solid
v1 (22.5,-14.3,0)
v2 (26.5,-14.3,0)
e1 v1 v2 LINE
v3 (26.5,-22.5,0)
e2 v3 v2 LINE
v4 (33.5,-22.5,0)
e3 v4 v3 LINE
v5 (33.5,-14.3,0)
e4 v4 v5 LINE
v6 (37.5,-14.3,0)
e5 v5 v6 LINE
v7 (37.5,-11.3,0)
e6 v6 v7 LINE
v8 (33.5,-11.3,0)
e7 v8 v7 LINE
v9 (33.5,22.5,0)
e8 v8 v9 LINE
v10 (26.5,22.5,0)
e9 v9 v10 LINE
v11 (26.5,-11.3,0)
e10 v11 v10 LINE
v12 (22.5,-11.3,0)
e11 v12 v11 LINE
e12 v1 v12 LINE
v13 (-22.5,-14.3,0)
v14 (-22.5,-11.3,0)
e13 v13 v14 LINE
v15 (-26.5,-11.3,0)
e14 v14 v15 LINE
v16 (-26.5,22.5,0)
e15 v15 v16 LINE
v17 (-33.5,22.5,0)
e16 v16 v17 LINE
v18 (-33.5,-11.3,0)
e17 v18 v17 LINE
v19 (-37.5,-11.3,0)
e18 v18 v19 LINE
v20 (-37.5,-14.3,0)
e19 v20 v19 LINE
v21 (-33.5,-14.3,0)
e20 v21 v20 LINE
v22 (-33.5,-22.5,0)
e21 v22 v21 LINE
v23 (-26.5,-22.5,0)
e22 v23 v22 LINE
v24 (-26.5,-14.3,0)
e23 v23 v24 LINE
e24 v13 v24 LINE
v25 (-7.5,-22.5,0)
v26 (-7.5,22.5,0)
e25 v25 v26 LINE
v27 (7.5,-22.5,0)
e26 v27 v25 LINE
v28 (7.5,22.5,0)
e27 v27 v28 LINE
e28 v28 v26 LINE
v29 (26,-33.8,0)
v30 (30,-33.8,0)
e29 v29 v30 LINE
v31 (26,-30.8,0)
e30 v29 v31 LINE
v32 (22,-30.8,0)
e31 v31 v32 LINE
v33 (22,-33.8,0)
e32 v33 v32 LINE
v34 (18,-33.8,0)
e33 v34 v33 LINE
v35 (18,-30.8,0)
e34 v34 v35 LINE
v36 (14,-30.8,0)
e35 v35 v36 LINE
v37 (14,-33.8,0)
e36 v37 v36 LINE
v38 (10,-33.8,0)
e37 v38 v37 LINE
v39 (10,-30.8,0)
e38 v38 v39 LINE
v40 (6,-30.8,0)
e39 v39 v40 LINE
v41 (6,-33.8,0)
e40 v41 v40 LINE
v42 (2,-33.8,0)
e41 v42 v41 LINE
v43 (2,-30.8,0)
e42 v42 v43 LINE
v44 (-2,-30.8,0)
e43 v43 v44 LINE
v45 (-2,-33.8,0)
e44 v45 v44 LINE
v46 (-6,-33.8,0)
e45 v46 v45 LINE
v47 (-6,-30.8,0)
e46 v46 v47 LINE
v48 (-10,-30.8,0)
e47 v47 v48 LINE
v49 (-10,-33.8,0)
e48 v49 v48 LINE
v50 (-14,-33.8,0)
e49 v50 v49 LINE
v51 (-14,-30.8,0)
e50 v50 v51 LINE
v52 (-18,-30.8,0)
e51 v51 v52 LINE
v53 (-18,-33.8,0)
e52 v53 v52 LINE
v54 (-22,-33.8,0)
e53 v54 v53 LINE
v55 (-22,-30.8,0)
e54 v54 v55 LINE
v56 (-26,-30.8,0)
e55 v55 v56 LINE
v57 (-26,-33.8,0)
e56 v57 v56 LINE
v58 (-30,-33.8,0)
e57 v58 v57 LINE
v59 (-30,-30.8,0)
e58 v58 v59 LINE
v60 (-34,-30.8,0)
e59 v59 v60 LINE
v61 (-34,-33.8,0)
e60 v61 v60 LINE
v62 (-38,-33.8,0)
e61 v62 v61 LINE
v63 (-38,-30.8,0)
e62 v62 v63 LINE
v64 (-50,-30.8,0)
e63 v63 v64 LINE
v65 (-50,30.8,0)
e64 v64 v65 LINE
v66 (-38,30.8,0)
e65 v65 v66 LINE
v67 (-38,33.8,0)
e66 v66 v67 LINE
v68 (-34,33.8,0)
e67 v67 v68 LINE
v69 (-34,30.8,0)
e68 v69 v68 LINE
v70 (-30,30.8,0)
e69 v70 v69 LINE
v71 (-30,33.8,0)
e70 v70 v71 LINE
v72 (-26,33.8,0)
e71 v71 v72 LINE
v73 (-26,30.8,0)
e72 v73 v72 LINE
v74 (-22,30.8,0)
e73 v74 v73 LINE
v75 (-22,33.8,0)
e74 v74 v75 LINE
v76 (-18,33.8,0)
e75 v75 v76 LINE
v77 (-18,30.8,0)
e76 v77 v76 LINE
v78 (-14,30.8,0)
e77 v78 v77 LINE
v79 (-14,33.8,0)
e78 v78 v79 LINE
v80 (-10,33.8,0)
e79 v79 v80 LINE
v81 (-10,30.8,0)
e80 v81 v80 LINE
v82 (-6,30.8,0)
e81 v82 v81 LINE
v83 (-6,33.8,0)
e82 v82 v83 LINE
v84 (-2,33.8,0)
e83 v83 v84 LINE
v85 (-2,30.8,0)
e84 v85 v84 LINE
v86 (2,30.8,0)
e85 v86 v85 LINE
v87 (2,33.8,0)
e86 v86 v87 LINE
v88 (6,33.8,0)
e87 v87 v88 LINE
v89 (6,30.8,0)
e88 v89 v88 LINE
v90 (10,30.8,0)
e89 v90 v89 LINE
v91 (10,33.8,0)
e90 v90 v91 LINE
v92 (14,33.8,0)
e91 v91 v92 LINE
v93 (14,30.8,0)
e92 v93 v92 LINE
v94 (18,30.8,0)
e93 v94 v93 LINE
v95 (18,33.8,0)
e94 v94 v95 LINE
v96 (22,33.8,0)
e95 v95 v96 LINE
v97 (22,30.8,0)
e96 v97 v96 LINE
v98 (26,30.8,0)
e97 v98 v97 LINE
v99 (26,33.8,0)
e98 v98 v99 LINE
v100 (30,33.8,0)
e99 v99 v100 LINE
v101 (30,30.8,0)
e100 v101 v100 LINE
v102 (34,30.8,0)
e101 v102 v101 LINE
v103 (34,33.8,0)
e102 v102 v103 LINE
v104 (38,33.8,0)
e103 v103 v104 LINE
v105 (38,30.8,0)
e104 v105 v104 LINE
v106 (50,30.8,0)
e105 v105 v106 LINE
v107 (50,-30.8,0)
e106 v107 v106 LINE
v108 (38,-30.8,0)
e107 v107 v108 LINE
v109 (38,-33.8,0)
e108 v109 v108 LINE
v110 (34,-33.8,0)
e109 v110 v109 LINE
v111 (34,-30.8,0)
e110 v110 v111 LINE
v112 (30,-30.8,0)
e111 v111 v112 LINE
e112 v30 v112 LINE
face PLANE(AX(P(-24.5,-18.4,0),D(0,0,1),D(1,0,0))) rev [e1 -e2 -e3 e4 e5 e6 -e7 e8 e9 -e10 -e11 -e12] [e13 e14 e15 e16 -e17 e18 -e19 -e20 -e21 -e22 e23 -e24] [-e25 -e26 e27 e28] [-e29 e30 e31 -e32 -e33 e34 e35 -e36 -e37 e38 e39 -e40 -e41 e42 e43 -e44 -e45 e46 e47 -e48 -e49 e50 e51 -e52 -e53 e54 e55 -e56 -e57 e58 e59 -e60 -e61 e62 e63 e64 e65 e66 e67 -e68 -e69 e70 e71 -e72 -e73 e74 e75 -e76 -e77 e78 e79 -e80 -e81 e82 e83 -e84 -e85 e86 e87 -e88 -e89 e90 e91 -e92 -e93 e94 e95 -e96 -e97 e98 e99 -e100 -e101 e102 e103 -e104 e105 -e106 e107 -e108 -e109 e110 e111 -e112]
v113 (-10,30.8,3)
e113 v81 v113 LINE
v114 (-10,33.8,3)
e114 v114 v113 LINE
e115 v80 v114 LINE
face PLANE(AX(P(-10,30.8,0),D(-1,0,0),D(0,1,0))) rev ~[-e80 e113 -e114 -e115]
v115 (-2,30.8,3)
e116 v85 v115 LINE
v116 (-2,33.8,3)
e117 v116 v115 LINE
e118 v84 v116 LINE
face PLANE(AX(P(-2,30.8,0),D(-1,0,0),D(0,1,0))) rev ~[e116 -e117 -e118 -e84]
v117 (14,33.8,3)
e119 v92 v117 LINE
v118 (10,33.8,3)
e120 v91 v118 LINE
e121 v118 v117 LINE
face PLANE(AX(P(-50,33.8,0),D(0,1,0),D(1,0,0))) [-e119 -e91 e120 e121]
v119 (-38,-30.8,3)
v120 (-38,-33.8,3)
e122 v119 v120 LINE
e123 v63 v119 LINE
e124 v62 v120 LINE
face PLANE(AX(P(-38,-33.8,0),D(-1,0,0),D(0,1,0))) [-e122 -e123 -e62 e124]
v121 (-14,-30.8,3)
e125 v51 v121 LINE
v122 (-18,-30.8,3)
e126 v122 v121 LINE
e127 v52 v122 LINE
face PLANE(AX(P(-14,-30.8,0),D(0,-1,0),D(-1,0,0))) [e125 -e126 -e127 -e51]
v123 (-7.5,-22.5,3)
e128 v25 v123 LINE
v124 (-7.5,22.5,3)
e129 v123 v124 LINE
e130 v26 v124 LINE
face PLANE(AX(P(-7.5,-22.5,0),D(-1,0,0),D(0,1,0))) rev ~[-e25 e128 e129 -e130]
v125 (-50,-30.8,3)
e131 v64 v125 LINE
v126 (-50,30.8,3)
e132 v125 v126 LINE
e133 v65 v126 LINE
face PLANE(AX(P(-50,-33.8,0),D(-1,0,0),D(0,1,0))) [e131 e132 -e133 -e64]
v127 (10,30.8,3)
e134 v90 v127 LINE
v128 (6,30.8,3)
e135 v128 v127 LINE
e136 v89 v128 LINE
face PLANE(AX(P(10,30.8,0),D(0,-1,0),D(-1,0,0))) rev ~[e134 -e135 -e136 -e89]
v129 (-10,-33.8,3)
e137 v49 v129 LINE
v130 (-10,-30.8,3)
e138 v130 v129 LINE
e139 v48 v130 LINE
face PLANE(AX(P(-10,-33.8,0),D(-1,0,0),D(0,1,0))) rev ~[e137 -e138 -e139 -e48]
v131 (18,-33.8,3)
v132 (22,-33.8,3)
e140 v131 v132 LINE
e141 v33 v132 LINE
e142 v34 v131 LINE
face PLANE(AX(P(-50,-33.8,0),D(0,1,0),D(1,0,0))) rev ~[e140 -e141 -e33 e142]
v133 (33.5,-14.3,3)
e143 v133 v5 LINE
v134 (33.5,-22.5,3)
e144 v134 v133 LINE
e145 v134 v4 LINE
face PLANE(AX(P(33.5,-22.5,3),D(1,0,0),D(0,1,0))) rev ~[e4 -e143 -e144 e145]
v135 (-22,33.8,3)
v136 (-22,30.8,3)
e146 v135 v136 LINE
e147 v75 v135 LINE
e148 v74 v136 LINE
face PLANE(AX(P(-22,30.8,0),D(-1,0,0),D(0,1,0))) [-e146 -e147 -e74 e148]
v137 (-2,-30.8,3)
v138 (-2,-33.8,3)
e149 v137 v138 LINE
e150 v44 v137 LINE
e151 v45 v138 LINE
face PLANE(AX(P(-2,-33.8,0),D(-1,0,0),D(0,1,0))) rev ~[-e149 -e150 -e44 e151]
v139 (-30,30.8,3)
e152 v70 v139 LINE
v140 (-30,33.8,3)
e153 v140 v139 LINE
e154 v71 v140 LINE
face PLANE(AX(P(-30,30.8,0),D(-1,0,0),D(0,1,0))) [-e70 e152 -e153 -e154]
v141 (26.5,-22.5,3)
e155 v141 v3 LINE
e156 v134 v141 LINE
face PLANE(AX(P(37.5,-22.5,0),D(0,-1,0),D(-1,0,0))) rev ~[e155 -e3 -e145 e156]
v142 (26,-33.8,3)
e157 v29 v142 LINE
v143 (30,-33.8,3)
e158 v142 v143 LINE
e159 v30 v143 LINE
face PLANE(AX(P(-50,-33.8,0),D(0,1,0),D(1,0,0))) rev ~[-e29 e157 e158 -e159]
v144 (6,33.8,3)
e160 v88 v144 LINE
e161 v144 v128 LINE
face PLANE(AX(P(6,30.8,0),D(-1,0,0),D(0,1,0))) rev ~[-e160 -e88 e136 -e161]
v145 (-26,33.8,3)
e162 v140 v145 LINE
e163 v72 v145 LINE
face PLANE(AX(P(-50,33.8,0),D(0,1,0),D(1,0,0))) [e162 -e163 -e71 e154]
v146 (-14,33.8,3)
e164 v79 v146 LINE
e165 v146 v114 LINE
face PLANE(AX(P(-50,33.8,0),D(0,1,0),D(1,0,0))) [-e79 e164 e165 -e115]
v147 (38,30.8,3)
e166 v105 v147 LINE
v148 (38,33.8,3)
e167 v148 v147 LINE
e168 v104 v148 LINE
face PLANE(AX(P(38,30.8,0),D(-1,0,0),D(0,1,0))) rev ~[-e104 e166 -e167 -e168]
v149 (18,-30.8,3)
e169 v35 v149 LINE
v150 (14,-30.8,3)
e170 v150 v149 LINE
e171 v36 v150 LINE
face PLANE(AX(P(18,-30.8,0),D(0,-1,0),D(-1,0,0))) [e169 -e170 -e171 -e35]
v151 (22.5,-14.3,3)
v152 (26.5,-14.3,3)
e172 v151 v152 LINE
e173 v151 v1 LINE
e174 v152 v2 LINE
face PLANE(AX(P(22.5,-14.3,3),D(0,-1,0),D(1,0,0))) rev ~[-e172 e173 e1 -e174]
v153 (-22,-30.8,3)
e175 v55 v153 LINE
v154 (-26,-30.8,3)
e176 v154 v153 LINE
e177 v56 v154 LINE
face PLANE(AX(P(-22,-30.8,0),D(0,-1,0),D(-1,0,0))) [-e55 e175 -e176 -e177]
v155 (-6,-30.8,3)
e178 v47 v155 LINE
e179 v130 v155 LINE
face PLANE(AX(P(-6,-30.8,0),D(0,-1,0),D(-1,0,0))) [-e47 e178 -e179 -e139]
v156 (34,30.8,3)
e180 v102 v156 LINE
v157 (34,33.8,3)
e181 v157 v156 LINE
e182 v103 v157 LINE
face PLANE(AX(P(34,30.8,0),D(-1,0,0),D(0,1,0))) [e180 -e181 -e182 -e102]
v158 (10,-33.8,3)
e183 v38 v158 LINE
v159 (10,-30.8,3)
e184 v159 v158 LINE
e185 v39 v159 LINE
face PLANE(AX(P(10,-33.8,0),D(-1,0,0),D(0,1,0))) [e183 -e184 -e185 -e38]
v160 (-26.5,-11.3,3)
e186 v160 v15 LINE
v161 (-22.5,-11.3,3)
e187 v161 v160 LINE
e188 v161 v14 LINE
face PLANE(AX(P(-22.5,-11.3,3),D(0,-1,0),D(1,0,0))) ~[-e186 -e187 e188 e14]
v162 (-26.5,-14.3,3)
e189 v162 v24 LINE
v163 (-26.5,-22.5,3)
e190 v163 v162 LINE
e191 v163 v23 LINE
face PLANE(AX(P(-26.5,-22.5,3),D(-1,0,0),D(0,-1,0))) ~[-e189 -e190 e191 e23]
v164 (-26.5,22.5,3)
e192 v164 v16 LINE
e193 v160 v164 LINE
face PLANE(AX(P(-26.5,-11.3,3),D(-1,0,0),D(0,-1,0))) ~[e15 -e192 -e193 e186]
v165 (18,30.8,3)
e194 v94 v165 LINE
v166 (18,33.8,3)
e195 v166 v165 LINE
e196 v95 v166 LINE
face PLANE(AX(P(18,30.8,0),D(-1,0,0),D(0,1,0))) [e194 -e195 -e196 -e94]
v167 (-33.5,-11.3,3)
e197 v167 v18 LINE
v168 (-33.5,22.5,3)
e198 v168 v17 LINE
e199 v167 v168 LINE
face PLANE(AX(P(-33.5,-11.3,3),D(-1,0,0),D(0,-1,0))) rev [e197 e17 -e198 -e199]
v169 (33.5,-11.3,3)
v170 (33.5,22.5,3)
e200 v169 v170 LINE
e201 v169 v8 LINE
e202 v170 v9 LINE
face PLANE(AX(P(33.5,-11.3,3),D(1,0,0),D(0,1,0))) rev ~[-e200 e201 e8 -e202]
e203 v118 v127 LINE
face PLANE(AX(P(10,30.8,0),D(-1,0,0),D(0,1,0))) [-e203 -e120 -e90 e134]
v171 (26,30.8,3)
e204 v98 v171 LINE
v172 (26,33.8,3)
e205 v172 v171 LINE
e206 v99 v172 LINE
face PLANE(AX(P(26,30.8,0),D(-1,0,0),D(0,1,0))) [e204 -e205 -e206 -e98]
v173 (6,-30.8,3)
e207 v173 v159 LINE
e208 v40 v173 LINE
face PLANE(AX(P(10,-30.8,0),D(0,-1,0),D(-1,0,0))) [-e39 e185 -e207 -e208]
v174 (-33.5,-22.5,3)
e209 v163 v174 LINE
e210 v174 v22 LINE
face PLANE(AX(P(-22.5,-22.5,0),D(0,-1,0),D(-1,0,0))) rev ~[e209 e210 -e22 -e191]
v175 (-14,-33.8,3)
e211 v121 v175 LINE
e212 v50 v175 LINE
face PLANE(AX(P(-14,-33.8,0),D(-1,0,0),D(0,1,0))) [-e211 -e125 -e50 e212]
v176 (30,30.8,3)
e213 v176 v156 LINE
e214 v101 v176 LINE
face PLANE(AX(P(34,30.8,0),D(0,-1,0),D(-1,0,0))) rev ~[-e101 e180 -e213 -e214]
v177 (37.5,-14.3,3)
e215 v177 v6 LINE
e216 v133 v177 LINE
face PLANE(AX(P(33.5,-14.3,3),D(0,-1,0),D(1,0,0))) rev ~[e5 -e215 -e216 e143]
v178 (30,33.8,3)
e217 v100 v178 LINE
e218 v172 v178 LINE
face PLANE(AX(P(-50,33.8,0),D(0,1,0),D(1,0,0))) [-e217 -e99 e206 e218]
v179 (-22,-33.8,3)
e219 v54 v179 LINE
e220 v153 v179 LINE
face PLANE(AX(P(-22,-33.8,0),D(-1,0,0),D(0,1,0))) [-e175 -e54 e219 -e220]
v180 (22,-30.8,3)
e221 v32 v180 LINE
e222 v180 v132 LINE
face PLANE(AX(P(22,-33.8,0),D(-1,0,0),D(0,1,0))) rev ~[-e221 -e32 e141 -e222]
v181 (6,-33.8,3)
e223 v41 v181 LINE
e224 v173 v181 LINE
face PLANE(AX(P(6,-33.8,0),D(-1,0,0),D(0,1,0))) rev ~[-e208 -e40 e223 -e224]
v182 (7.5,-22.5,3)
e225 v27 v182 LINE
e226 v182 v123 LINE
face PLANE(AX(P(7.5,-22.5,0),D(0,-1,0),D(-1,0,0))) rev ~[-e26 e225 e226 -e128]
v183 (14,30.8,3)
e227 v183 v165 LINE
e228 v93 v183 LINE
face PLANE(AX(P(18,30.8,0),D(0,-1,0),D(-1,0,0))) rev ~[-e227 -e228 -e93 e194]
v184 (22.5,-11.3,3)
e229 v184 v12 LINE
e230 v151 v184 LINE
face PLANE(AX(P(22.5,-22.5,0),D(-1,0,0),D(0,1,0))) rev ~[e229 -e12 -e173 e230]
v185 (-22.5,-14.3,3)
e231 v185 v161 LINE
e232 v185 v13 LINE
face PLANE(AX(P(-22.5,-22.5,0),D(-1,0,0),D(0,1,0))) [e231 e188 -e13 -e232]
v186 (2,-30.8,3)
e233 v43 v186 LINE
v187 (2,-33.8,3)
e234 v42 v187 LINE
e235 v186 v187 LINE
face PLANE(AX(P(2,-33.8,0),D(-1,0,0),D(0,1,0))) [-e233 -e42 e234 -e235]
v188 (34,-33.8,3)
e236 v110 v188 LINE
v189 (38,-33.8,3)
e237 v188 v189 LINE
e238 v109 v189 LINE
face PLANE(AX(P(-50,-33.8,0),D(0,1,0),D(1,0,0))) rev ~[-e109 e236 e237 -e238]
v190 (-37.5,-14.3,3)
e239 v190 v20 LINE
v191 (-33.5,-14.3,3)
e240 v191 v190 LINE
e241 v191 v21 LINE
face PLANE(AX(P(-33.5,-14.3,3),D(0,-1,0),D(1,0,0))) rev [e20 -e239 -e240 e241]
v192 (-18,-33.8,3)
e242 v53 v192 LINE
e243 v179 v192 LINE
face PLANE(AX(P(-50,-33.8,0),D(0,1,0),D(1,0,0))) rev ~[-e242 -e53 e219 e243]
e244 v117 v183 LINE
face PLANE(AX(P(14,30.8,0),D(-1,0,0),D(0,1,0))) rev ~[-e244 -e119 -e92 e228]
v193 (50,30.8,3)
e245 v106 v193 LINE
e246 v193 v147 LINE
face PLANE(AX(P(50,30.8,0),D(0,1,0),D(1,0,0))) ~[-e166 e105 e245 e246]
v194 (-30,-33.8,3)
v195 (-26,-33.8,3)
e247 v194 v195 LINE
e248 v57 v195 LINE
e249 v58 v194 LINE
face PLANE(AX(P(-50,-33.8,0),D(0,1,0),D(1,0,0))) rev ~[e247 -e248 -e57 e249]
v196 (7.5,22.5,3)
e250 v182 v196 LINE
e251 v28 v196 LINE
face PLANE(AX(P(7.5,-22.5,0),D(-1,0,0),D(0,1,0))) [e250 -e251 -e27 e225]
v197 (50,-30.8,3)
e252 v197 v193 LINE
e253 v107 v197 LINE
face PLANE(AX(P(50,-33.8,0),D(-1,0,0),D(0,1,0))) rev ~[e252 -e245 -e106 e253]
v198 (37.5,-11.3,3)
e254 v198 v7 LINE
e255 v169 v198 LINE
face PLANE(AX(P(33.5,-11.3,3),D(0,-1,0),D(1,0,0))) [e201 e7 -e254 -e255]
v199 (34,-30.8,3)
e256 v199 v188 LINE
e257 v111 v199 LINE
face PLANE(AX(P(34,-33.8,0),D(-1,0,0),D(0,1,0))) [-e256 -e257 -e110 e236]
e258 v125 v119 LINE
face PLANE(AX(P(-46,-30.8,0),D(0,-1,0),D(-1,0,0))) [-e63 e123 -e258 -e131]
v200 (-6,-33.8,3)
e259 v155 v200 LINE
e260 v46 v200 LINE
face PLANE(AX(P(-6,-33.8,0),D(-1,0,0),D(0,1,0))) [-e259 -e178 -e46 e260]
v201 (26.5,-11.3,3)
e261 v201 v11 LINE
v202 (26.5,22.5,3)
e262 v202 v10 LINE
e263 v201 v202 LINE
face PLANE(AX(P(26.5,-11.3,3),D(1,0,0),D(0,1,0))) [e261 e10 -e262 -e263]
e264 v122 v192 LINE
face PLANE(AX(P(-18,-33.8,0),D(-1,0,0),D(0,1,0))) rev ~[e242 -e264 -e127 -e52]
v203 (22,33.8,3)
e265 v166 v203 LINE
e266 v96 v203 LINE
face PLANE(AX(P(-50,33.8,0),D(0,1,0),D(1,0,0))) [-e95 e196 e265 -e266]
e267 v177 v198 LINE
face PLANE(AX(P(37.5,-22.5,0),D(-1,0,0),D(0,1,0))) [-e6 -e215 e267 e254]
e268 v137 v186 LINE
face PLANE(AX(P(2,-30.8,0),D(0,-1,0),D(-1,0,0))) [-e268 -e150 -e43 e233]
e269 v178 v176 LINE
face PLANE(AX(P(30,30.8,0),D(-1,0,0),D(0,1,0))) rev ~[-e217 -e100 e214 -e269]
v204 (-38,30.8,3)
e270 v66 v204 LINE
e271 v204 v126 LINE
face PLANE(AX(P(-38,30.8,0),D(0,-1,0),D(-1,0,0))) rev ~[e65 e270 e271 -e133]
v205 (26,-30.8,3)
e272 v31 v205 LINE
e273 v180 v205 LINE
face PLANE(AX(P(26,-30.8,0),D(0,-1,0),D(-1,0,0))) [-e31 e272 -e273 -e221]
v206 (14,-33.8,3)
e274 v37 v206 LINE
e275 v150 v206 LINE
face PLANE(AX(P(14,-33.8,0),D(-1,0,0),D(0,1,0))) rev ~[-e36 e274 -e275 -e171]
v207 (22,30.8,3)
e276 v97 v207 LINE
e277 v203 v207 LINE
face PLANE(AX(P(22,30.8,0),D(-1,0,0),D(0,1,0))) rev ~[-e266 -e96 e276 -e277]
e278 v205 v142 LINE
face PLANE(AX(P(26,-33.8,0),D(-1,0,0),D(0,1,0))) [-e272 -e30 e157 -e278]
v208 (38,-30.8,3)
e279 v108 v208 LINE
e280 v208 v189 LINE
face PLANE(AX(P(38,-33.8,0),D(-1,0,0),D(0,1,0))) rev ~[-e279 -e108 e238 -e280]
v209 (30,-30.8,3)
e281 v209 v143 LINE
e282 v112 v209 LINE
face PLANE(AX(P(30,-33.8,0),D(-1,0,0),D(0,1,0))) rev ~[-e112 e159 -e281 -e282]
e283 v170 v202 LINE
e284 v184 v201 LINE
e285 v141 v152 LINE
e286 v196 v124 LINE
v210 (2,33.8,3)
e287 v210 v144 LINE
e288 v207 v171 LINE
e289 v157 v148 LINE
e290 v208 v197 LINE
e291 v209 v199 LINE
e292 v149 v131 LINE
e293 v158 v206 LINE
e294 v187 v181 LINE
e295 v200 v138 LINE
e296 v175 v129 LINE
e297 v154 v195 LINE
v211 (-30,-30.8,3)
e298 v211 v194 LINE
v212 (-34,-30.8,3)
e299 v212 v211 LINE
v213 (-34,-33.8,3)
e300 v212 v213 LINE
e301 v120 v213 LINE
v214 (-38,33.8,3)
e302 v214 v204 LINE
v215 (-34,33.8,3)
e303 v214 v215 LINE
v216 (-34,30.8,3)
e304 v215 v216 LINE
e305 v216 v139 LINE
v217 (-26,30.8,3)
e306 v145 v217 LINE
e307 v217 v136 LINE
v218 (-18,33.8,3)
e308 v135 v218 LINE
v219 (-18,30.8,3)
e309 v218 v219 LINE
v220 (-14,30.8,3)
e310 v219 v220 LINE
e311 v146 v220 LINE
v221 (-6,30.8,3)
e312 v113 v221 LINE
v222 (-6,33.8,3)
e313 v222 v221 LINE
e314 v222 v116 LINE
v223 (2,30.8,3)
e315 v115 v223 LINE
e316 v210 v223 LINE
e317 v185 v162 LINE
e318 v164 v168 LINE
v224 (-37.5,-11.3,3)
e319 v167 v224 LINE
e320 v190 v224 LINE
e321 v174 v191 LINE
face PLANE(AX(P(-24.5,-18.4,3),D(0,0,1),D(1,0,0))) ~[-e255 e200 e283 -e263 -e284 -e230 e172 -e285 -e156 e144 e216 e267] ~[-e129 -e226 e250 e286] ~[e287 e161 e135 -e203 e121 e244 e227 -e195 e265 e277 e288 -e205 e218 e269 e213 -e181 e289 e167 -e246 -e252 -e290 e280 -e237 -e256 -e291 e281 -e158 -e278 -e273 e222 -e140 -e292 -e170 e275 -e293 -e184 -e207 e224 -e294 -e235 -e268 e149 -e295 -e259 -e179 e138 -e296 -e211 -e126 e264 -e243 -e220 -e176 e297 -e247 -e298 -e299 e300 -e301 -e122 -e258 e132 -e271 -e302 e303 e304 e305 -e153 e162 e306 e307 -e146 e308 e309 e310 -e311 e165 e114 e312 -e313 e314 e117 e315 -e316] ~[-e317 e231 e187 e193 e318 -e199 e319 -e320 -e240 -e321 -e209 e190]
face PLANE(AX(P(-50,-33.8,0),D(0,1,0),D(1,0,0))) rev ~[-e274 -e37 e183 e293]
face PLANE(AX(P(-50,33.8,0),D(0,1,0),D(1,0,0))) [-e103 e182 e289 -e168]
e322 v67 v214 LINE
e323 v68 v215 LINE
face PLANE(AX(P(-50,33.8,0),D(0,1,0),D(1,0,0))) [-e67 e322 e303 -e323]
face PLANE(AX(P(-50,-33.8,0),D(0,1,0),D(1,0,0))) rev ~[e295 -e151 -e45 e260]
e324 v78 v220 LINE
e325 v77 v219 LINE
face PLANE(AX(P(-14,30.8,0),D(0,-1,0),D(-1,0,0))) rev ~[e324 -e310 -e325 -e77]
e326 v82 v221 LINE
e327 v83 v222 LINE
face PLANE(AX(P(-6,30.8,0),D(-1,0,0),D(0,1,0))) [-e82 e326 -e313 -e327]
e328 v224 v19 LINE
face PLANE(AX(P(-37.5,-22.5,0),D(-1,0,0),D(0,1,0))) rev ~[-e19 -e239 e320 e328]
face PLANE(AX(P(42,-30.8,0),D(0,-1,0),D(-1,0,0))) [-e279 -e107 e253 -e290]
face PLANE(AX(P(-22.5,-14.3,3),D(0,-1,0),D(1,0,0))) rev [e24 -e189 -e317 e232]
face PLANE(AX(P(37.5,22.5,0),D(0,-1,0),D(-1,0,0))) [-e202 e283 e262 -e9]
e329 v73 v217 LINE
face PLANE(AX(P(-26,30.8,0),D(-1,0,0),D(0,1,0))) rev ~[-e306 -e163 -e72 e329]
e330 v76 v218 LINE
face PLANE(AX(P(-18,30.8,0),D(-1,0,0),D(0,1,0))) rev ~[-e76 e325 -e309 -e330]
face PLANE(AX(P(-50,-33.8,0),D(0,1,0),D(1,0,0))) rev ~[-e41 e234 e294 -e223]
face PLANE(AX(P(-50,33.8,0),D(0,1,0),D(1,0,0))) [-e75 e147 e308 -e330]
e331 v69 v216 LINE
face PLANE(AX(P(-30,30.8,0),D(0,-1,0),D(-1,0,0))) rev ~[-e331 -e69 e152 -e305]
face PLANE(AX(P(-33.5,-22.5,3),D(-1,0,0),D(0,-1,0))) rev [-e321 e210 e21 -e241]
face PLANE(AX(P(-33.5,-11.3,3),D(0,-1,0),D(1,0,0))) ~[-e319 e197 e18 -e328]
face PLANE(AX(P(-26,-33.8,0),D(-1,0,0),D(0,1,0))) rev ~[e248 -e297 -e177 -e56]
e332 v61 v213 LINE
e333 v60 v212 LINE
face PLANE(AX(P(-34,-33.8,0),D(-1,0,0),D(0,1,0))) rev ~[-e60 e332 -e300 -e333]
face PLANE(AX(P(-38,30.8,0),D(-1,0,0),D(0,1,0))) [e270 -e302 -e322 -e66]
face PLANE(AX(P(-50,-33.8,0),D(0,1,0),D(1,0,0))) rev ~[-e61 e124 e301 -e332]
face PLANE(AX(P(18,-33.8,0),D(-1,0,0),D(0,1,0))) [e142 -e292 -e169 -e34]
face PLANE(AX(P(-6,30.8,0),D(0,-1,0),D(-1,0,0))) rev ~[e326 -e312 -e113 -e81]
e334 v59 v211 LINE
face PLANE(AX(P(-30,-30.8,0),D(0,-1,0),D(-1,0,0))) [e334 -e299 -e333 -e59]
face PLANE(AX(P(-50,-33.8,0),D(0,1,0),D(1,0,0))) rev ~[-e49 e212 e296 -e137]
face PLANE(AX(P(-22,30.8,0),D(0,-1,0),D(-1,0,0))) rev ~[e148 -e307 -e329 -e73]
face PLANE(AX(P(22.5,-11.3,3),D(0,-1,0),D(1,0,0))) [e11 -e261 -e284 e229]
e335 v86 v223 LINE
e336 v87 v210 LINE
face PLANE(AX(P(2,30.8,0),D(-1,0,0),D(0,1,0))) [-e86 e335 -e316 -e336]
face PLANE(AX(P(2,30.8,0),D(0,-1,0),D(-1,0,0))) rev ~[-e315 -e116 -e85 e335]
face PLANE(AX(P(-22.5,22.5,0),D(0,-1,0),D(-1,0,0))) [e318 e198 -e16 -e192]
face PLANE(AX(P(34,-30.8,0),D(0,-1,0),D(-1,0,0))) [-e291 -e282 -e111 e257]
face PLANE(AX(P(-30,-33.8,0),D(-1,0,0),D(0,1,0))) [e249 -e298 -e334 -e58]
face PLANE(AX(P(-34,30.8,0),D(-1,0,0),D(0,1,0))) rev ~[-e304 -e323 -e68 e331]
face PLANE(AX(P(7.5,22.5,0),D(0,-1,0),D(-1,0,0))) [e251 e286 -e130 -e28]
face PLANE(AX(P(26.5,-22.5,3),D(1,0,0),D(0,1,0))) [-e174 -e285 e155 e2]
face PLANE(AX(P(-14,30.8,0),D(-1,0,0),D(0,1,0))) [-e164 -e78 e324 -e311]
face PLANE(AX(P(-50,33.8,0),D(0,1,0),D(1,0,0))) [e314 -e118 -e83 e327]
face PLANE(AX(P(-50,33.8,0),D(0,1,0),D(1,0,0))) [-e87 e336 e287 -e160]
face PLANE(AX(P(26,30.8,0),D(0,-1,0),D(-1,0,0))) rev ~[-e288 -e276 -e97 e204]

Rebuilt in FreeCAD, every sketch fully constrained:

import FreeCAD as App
import Part
import Sketcher

doc = App.newDocument("Part")
body = doc.addObject("PartDesign::Body", "Body")

sketch1 = doc.addObject("Sketcher::SketchObject", "Sketch")
body.addObject(sketch1)
sketch1.AttachmentSupport = (doc.XY_Plane, [""])
sketch1.MapMode = "FlatFace"
sketch1.addGeometry([
    Part.LineSegment(App.Vector(-50, 33.8, 0), App.Vector(-50, -33.8, 0)),
    Part.LineSegment(App.Vector(-50, -33.8, 0), App.Vector(50, -33.8, 0)),
    Part.LineSegment(App.Vector(50, -33.8, 0), App.Vector(50, 33.8, 0)),
    Part.LineSegment(App.Vector(50, 33.8, 0), App.Vector(-50, 33.8, 0)),
], False)
sketch1.addConstraint([
    Sketcher.Constraint("Coincident", 0, 2, 1, 1),
    Sketcher.Constraint("Coincident", 1, 2, 2, 1),
    Sketcher.Constraint("Coincident", 2, 2, 3, 1),
    Sketcher.Constraint("Coincident", 3, 2, 0, 1),
    Sketcher.Constraint("Vertical", 0),
    Sketcher.Constraint("Horizontal", 1),
    Sketcher.Constraint("Vertical", 2),
    Sketcher.Constraint("Horizontal", 3),
    Sketcher.Constraint("Symmetric", 0, 2, 2, 2, -1, 1),
    Sketcher.Constraint("DistanceX", 1, 1, 1, 2, 100.0),
    Sketcher.Constraint("DistanceY", 0, 2, 0, 1, 67.6),
])
pad1 = doc.addObject("PartDesign::Pad", "Pad")
body.addObject(pad1)
pad1.Profile = sketch1
pad1.Length = 3

sketch2 = doc.addObject("Sketcher::SketchObject", "Sketch001")
body.addObject(sketch2)
sketch2.AttachmentSupport = (doc.XY_Plane, [""])
sketch2.MapMode = "FlatFace"
sketch2.addGeometry([
    Part.LineSegment(App.Vector(50, -30.8, 0), App.Vector(50, -33.8, 0)),
    Part.LineSegment(App.Vector(50, -33.8, 0), App.Vector(46, -33.8, 0)),
    Part.LineSegment(App.Vector(46, -33.8, 0), App.Vector(46, -30.8, 0)),
    Part.LineSegment(App.Vector(46, -30.8, 0), App.Vector(50, -30.8, 0)),
], False)
sketch2.addConstraint([
    Sketcher.Constraint("Coincident", 0, 2, 1, 1),
    Sketcher.Constraint("Coincident", 1, 2, 2, 1),
    Sketcher.Constraint("Coincident", 2, 2, 3, 1),
    Sketcher.Constraint("Coincident", 3, 2, 0, 1),
    Sketcher.Constraint("Vertical", 0),
    Sketcher.Constraint("Horizontal", 1),
    Sketcher.Constraint("Vertical", 2),
    Sketcher.Constraint("Horizontal", 3),
    Sketcher.Constraint("DistanceX", 1, 2, 1, 1, 4.0),
    Sketcher.Constraint("DistanceY", 0, 2, 0, 1, 3.0),
    Sketcher.Constraint("DistanceX", -1, 1, 0, 2, 50.0),
    Sketcher.Constraint("DistanceY", 0, 2, -1, 1, 33.8),
])
pocket1 = doc.addObject("PartDesign::Pocket", "Pocket")
body.addObject(pocket1)
pocket1.Profile = sketch2
pocket1.Length = 10
pocket1.Reversed = True
doc.recompute()

linearpattern = doc.addObject("PartDesign::LinearPattern", "LinearPattern")
body.addObject(linearpattern)
linearpattern.Originals = [pocket1]
linearpattern.Direction = (doc.X_Axis, [""])
linearpattern.Mode = "offset"
linearpattern.Offset = 8
linearpattern.Occurrences = 13
linearpattern.Reversed = True
body.Tip = linearpattern

sketch3 = doc.addObject("Sketcher::SketchObject", "Sketch002")
body.addObject(sketch3)
sketch3.AttachmentSupport = (doc.XY_Plane, [""])
sketch3.MapMode = "FlatFace"
sketch3.addGeometry([
    Part.LineSegment(App.Vector(7.5, 22.5, 0), App.Vector(7.5, -22.5, 0)),
    Part.LineSegment(App.Vector(7.5, -22.5, 0), App.Vector(-7.5, -22.5, 0)),
    Part.LineSegment(App.Vector(-7.5, -22.5, 0), App.Vector(-7.5, 22.5, 0)),
    Part.LineSegment(App.Vector(-7.5, 22.5, 0), App.Vector(7.5, 22.5, 0)),
], False)
sketch3.addConstraint([
    Sketcher.Constraint("Coincident", 0, 2, 1, 1),
    Sketcher.Constraint("Coincident", 1, 2, 2, 1),
    Sketcher.Constraint("Coincident", 2, 2, 3, 1),
    Sketcher.Constraint("Coincident", 3, 2, 0, 1),
    Sketcher.Constraint("Vertical", 0),
    Sketcher.Constraint("Horizontal", 1),
    Sketcher.Constraint("Vertical", 2),
    Sketcher.Constraint("Horizontal", 3),
    Sketcher.Constraint("Symmetric", 0, 2, 2, 2, -1, 1),
    Sketcher.Constraint("DistanceX", 1, 2, 1, 1, 15.0),
    Sketcher.Constraint("DistanceY", 0, 2, 0, 1, 45.0),
])
pocket2 = doc.addObject("PartDesign::Pocket", "Pocket001")
body.addObject(pocket2)
pocket2.Profile = sketch3
pocket2.Length = 3
pocket2.Reversed = True
doc.recompute()

mirrored = doc.addObject("PartDesign::Mirrored", "Mirrored")
body.addObject(mirrored)
mirrored.Originals = [pocket1]
mirrored.MirrorPlane = (doc.XZ_Plane, [""])
body.Tip = mirrored

sketch4 = doc.addObject("Sketcher::SketchObject", "Sketch003")
body.addObject(sketch4)
sketch4.AttachmentSupport = (doc.XY_Plane, [""])
sketch4.MapMode = "FlatFace"
sketch4.addGeometry([
    Part.LineSegment(App.Vector(42, 33.8, 0), App.Vector(42, 30.8, 0)),
    Part.LineSegment(App.Vector(42, 30.8, 0), App.Vector(38, 30.8, 0)),
    Part.LineSegment(App.Vector(38, 30.8, 0), App.Vector(38, 33.8, 0)),
    Part.LineSegment(App.Vector(38, 33.8, 0), App.Vector(42, 33.8, 0)),
], False)
sketch4.addConstraint([
    Sketcher.Constraint("Coincident", 0, 2, 1, 1),
    Sketcher.Constraint("Coincident", 1, 2, 2, 1),
    Sketcher.Constraint("Coincident", 2, 2, 3, 1),
    Sketcher.Constraint("Coincident", 3, 2, 0, 1),
    Sketcher.Constraint("Vertical", 0),
    Sketcher.Constraint("Horizontal", 1),
    Sketcher.Constraint("Vertical", 2),
    Sketcher.Constraint("Horizontal", 3),
    Sketcher.Constraint("DistanceX", 1, 2, 1, 1, 4.0),
    Sketcher.Constraint("DistanceY", 0, 2, 0, 1, 3.0),
    Sketcher.Constraint("DistanceX", -1, 1, 0, 2, 42.0),
    Sketcher.Constraint("DistanceY", -1, 1, 0, 2, 30.8),
])
pocket3 = doc.addObject("PartDesign::Pocket", "Pocket002")
body.addObject(pocket3)
pocket3.Profile = sketch4
pocket3.Length = 10
pocket3.Reversed = True

sketch5 = doc.addObject("Sketcher::SketchObject", "Sketch004")
body.addObject(sketch5)
sketch5.AttachmentSupport = (doc.XY_Plane, [""])
sketch5.MapMode = "FlatFace"
sketch5.addGeometry([
    Part.LineSegment(App.Vector(34, 33.8, 0), App.Vector(34, 30.8, 0)),
    Part.LineSegment(App.Vector(34, 30.8, 0), App.Vector(30, 30.8, 0)),
    Part.LineSegment(App.Vector(30, 30.8, 0), App.Vector(30, 33.8, 0)),
    Part.LineSegment(App.Vector(30, 33.8, 0), App.Vector(34, 33.8, 0)),
], False)
sketch5.addConstraint([
    Sketcher.Constraint("Coincident", 0, 2, 1, 1),
    Sketcher.Constraint("Coincident", 1, 2, 2, 1),
    Sketcher.Constraint("Coincident", 2, 2, 3, 1),
    Sketcher.Constraint("Coincident", 3, 2, 0, 1),
    Sketcher.Constraint("Vertical", 0),
    Sketcher.Constraint("Horizontal", 1),
    Sketcher.Constraint("Vertical", 2),
    Sketcher.Constraint("Horizontal", 3),
    Sketcher.Constraint("DistanceX", 1, 2, 1, 1, 4.0),
    Sketcher.Constraint("DistanceY", 0, 2, 0, 1, 3.0),
    Sketcher.Constraint("DistanceX", -1, 1, 0, 2, 34.0),
    Sketcher.Constraint("DistanceY", -1, 1, 0, 2, 30.8),
])
pocket4 = doc.addObject("PartDesign::Pocket", "Pocket003")
body.addObject(pocket4)
pocket4.Profile = sketch5
pocket4.Length = 10
pocket4.Reversed = True

sketch6 = doc.addObject("Sketcher::SketchObject", "Sketch005")
body.addObject(sketch6)
sketch6.AttachmentSupport = (doc.XY_Plane, [""])
sketch6.MapMode = "FlatFace"
sketch6.addGeometry([
    Part.LineSegment(App.Vector(26, 33.8, 0), App.Vector(26, 30.8, 0)),
    Part.LineSegment(App.Vector(26, 30.8, 0), App.Vector(22, 30.8, 0)),
    Part.LineSegment(App.Vector(22, 30.8, 0), App.Vector(22, 33.8, 0)),
    Part.LineSegment(App.Vector(22, 33.8, 0), App.Vector(26, 33.8, 0)),
], False)
sketch6.addConstraint([
    Sketcher.Constraint("Coincident", 0, 2, 1, 1),
    Sketcher.Constraint("Coincident", 1, 2, 2, 1),
    Sketcher.Constraint("Coincident", 2, 2, 3, 1),
    Sketcher.Constraint("Coincident", 3, 2, 0, 1),
    Sketcher.Constraint("Vertical", 0),
    Sketcher.Constraint("Horizontal", 1),
    Sketcher.Constraint("Vertical", 2),
    Sketcher.Constraint("Horizontal", 3),
    Sketcher.Constraint("DistanceX", 1, 2, 1, 1, 4.0),
    Sketcher.Constraint("DistanceY", 0, 2, 0, 1, 3.0),
    Sketcher.Constraint("DistanceX", -1, 1, 0, 2, 26.0),
    Sketcher.Constraint("DistanceY", -1, 1, 0, 2, 30.8),
])
pocket5 = doc.addObject("PartDesign::Pocket", "Pocket004")
body.addObject(pocket5)
pocket5.Profile = sketch6
pocket5.Length = 10
pocket5.Reversed = True

sketch7 = doc.addObject("Sketcher::SketchObject", "Sketch006")
body.addObject(sketch7)
sketch7.AttachmentSupport = (doc.XY_Plane, [""])
sketch7.MapMode = "FlatFace"
sketch7.addGeometry([
    Part.LineSegment(App.Vector(18, 33.8, 0), App.Vector(18, 30.8, 0)),
    Part.LineSegment(App.Vector(18, 30.8, 0), App.Vector(14, 30.8, 0)),
    Part.LineSegment(App.Vector(14, 30.8, 0), App.Vector(14, 33.8, 0)),
    Part.LineSegment(App.Vector(14, 33.8, 0), App.Vector(18, 33.8, 0)),
], False)
sketch7.addConstraint([
    Sketcher.Constraint("Coincident", 0, 2, 1, 1),
    Sketcher.Constraint("Coincident", 1, 2, 2, 1),
    Sketcher.Constraint("Coincident", 2, 2, 3, 1),
    Sketcher.Constraint("Coincident", 3, 2, 0, 1),
    Sketcher.Constraint("Vertical", 0),
    Sketcher.Constraint("Horizontal", 1),
    Sketcher.Constraint("Vertical", 2),
    Sketcher.Constraint("Horizontal", 3),
    Sketcher.Constraint("DistanceX", 1, 2, 1, 1, 4.0),
    Sketcher.Constraint("DistanceY", 0, 2, 0, 1, 3.0),
    Sketcher.Constraint("DistanceX", -1, 1, 0, 2, 18.0),
    Sketcher.Constraint("DistanceY", -1, 1, 0, 2, 30.8),
])
pocket6 = doc.addObject("PartDesign::Pocket", "Pocket005")
body.addObject(pocket6)
pocket6.Profile = sketch7
pocket6.Length = 10
pocket6.Reversed = True

sketch8 = doc.addObject("Sketcher::SketchObject", "Sketch007")
body.addObject(sketch8)
sketch8.AttachmentSupport = (doc.XY_Plane, [""])
sketch8.MapMode = "FlatFace"
sketch8.addGeometry([
    Part.LineSegment(App.Vector(10, 33.8, 0), App.Vector(10, 30.8, 0)),
    Part.LineSegment(App.Vector(10, 30.8, 0), App.Vector(6, 30.8, 0)),
    Part.LineSegment(App.Vector(6, 30.8, 0), App.Vector(6, 33.8, 0)),
    Part.LineSegment(App.Vector(6, 33.8, 0), App.Vector(10, 33.8, 0)),
], False)
sketch8.addConstraint([
    Sketcher.Constraint("Coincident", 0, 2, 1, 1),
    Sketcher.Constraint("Coincident", 1, 2, 2, 1),
    Sketcher.Constraint("Coincident", 2, 2, 3, 1),
    Sketcher.Constraint("Coincident", 3, 2, 0, 1),
    Sketcher.Constraint("Vertical", 0),
    Sketcher.Constraint("Horizontal", 1),
    Sketcher.Constraint("Vertical", 2),
    Sketcher.Constraint("Horizontal", 3),
    Sketcher.Constraint("DistanceX", 1, 2, 1, 1, 4.0),
    Sketcher.Constraint("DistanceY", 0, 2, 0, 1, 3.0),
    Sketcher.Constraint("DistanceX", -1, 1, 0, 2, 10.0),
    Sketcher.Constraint("DistanceY", -1, 1, 0, 2, 30.8),
])
pocket7 = doc.addObject("PartDesign::Pocket", "Pocket006")
body.addObject(pocket7)
pocket7.Profile = sketch8
pocket7.Length = 10
pocket7.Reversed = True

sketch9 = doc.addObject("Sketcher::SketchObject", "Sketch008")
body.addObject(sketch9)
sketch9.AttachmentSupport = (doc.XY_Plane, [""])
sketch9.MapMode = "FlatFace"
sketch9.addGeometry([
    Part.LineSegment(App.Vector(2, 33.8, 0), App.Vector(2, 30.8, 0)),
    Part.LineSegment(App.Vector(2, 30.8, 0), App.Vector(-2, 30.8, 0)),
    Part.LineSegment(App.Vector(-2, 30.8, 0), App.Vector(-2, 33.8, 0)),
    Part.LineSegment(App.Vector(-2, 33.8, 0), App.Vector(2, 33.8, 0)),
], False)
sketch9.addConstraint([
    Sketcher.Constraint("Coincident", 0, 2, 1, 1),
    Sketcher.Constraint("Coincident", 1, 2, 2, 1),
    Sketcher.Constraint("Coincident", 2, 2, 3, 1),
    Sketcher.Constraint("Coincident", 3, 2, 0, 1),
    Sketcher.Constraint("Vertical", 0),
    Sketcher.Constraint("Horizontal", 1),
    Sketcher.Constraint("Vertical", 2),
    Sketcher.Constraint("Horizontal", 3),
    Sketcher.Constraint("DistanceX", 1, 2, 1, 1, 4.0),
    Sketcher.Constraint("DistanceY", 0, 2, 0, 1, 3.0),
    Sketcher.Constraint("DistanceX", -1, 1, 0, 2, 2.0),
    Sketcher.Constraint("DistanceY", -1, 1, 0, 2, 30.8),
])
pocket8 = doc.addObject("PartDesign::Pocket", "Pocket007")
body.addObject(pocket8)
pocket8.Profile = sketch9
pocket8.Length = 10
pocket8.Reversed = True

sketch10 = doc.addObject("Sketcher::SketchObject", "Sketch009")
body.addObject(sketch10)
sketch10.AttachmentSupport = (doc.XY_Plane, [""])
sketch10.MapMode = "FlatFace"
sketch10.addGeometry([
    Part.LineSegment(App.Vector(-6, 33.8, 0), App.Vector(-6, 30.8, 0)),
    Part.LineSegment(App.Vector(-6, 30.8, 0), App.Vector(-10, 30.8, 0)),
    Part.LineSegment(App.Vector(-10, 30.8, 0), App.Vector(-10, 33.8, 0)),
    Part.LineSegment(App.Vector(-10, 33.8, 0), App.Vector(-6, 33.8, 0)),
], False)
sketch10.addConstraint([
    Sketcher.Constraint("Coincident", 0, 2, 1, 1),
    Sketcher.Constraint("Coincident", 1, 2, 2, 1),
    Sketcher.Constraint("Coincident", 2, 2, 3, 1),
    Sketcher.Constraint("Coincident", 3, 2, 0, 1),
    Sketcher.Constraint("Vertical", 0),
    Sketcher.Constraint("Horizontal", 1),
    Sketcher.Constraint("Vertical", 2),
    Sketcher.Constraint("Horizontal", 3),
    Sketcher.Constraint("DistanceX", 1, 2, 1, 1, 4.0),
    Sketcher.Constraint("DistanceY", 0, 2, 0, 1, 3.0),
    Sketcher.Constraint("DistanceX", 0, 2, -1, 1, 6.0),
    Sketcher.Constraint("DistanceY", -1, 1, 0, 2, 30.8),
])
pocket9 = doc.addObject("PartDesign::Pocket", "Pocket008")
body.addObject(pocket9)
pocket9.Profile = sketch10
pocket9.Length = 10
pocket9.Reversed = True

sketch11 = doc.addObject("Sketcher::SketchObject", "Sketch010")
body.addObject(sketch11)
sketch11.AttachmentSupport = (doc.XY_Plane, [""])
sketch11.MapMode = "FlatFace"
sketch11.addGeometry([
    Part.LineSegment(App.Vector(-14, 33.8, 0), App.Vector(-14, 30.8, 0)),
    Part.LineSegment(App.Vector(-14, 30.8, 0), App.Vector(-18, 30.8, 0)),
    Part.LineSegment(App.Vector(-18, 30.8, 0), App.Vector(-18, 33.8, 0)),
    Part.LineSegment(App.Vector(-18, 33.8, 0), App.Vector(-14, 33.8, 0)),
], False)
sketch11.addConstraint([
    Sketcher.Constraint("Coincident", 0, 2, 1, 1),
    Sketcher.Constraint("Coincident", 1, 2, 2, 1),
    Sketcher.Constraint("Coincident", 2, 2, 3, 1),
    Sketcher.Constraint("Coincident", 3, 2, 0, 1),
    Sketcher.Constraint("Vertical", 0),
    Sketcher.Constraint("Horizontal", 1),
    Sketcher.Constraint("Vertical", 2),
    Sketcher.Constraint("Horizontal", 3),
    Sketcher.Constraint("DistanceX", 1, 2, 1, 1, 4.0),
    Sketcher.Constraint("DistanceY", 0, 2, 0, 1, 3.0),
    Sketcher.Constraint("DistanceX", 0, 2, -1, 1, 14.0),
    Sketcher.Constraint("DistanceY", -1, 1, 0, 2, 30.8),
])
pocket10 = doc.addObject("PartDesign::Pocket", "Pocket009")
body.addObject(pocket10)
pocket10.Profile = sketch11
pocket10.Length = 10
pocket10.Reversed = True

sketch12 = doc.addObject("Sketcher::SketchObject", "Sketch011")
body.addObject(sketch12)
sketch12.AttachmentSupport = (doc.XY_Plane, [""])
sketch12.MapMode = "FlatFace"
sketch12.addGeometry([
    Part.LineSegment(App.Vector(-22, 33.8, 0), App.Vector(-22, 30.8, 0)),
    Part.LineSegment(App.Vector(-22, 30.8, 0), App.Vector(-26, 30.8, 0)),
    Part.LineSegment(App.Vector(-26, 30.8, 0), App.Vector(-26, 33.8, 0)),
    Part.LineSegment(App.Vector(-26, 33.8, 0), App.Vector(-22, 33.8, 0)),
], False)
sketch12.addConstraint([
    Sketcher.Constraint("Coincident", 0, 2, 1, 1),
    Sketcher.Constraint("Coincident", 1, 2, 2, 1),
    Sketcher.Constraint("Coincident", 2, 2, 3, 1),
    Sketcher.Constraint("Coincident", 3, 2, 0, 1),
    Sketcher.Constraint("Vertical", 0),
    Sketcher.Constraint("Horizontal", 1),
    Sketcher.Constraint("Vertical", 2),
    Sketcher.Constraint("Horizontal", 3),
    Sketcher.Constraint("DistanceX", 1, 2, 1, 1, 4.0),
    Sketcher.Constraint("DistanceY", 0, 2, 0, 1, 3.0),
    Sketcher.Constraint("DistanceX", 0, 2, -1, 1, 22.0),
    Sketcher.Constraint("DistanceY", -1, 1, 0, 2, 30.8),
])
pocket11 = doc.addObject("PartDesign::Pocket", "Pocket010")
body.addObject(pocket11)
pocket11.Profile = sketch12
pocket11.Length = 10
pocket11.Reversed = True

sketch13 = doc.addObject("Sketcher::SketchObject", "Sketch012")
body.addObject(sketch13)
sketch13.AttachmentSupport = (doc.XY_Plane, [""])
sketch13.MapMode = "FlatFace"
sketch13.addGeometry([
    Part.LineSegment(App.Vector(-30, 33.8, 0), App.Vector(-30, 30.8, 0)),
    Part.LineSegment(App.Vector(-30, 30.8, 0), App.Vector(-34, 30.8, 0)),
    Part.LineSegment(App.Vector(-34, 30.8, 0), App.Vector(-34, 33.8, 0)),
    Part.LineSegment(App.Vector(-34, 33.8, 0), App.Vector(-30, 33.8, 0)),
], False)
sketch13.addConstraint([
    Sketcher.Constraint("Coincident", 0, 2, 1, 1),
    Sketcher.Constraint("Coincident", 1, 2, 2, 1),
    Sketcher.Constraint("Coincident", 2, 2, 3, 1),
    Sketcher.Constraint("Coincident", 3, 2, 0, 1),
    Sketcher.Constraint("Vertical", 0),
    Sketcher.Constraint("Horizontal", 1),
    Sketcher.Constraint("Vertical", 2),
    Sketcher.Constraint("Horizontal", 3),
    Sketcher.Constraint("DistanceX", 1, 2, 1, 1, 4.0),
    Sketcher.Constraint("DistanceY", 0, 2, 0, 1, 3.0),
    Sketcher.Constraint("DistanceX", 0, 2, -1, 1, 30.0),
    Sketcher.Constraint("DistanceY", -1, 1, 0, 2, 30.8),
])
pocket12 = doc.addObject("PartDesign::Pocket", "Pocket011")
body.addObject(pocket12)
pocket12.Profile = sketch13
pocket12.Length = 10
pocket12.Reversed = True

sketch14 = doc.addObject("Sketcher::SketchObject", "Sketch013")
body.addObject(sketch14)
sketch14.AttachmentSupport = (doc.XY_Plane, [""])
sketch14.MapMode = "FlatFace"
sketch14.addGeometry([
    Part.LineSegment(App.Vector(-38, 33.8, 0), App.Vector(-38, 30.8, 0)),
    Part.LineSegment(App.Vector(-38, 30.8, 0), App.Vector(-42, 30.8, 0)),
    Part.LineSegment(App.Vector(-42, 30.8, 0), App.Vector(-42, 33.8, 0)),
    Part.LineSegment(App.Vector(-42, 33.8, 0), App.Vector(-38, 33.8, 0)),
], False)
sketch14.addConstraint([
    Sketcher.Constraint("Coincident", 0, 2, 1, 1),
    Sketcher.Constraint("Coincident", 1, 2, 2, 1),
    Sketcher.Constraint("Coincident", 2, 2, 3, 1),
    Sketcher.Constraint("Coincident", 3, 2, 0, 1),
    Sketcher.Constraint("Vertical", 0),
    Sketcher.Constraint("Horizontal", 1),
    Sketcher.Constraint("Vertical", 2),
    Sketcher.Constraint("Horizontal", 3),
    Sketcher.Constraint("DistanceX", 1, 2, 1, 1, 4.0),
    Sketcher.Constraint("DistanceY", 0, 2, 0, 1, 3.0),
    Sketcher.Constraint("DistanceX", 0, 2, -1, 1, 38.0),
    Sketcher.Constraint("DistanceY", -1, 1, 0, 2, 30.8),
])
pocket13 = doc.addObject("PartDesign::Pocket", "Pocket012")
body.addObject(pocket13)
pocket13.Profile = sketch14
pocket13.Length = 10
pocket13.Reversed = True

sketch15 = doc.addObject("Sketcher::SketchObject", "Sketch014")
body.addObject(sketch15)
sketch15.AttachmentSupport = (doc.XY_Plane, [""])
sketch15.MapMode = "FlatFace"
sketch15.addGeometry([
    Part.LineSegment(App.Vector(-46, 33.8, 0), App.Vector(-46, 30.8, 0)),
    Part.LineSegment(App.Vector(-46, 30.8, 0), App.Vector(-50, 30.8, 0)),
    Part.LineSegment(App.Vector(-50, 30.8, 0), App.Vector(-50, 33.8, 0)),
    Part.LineSegment(App.Vector(-50, 33.8, 0), App.Vector(-46, 33.8, 0)),
], False)
sketch15.addConstraint([
    Sketcher.Constraint("Coincident", 0, 2, 1, 1),
    Sketcher.Constraint("Coincident", 1, 2, 2, 1),
    Sketcher.Constraint("Coincident", 2, 2, 3, 1),
    Sketcher.Constraint("Coincident", 3, 2, 0, 1),
    Sketcher.Constraint("Vertical", 0),
    Sketcher.Constraint("Horizontal", 1),
    Sketcher.Constraint("Vertical", 2),
    Sketcher.Constraint("Horizontal", 3),
    Sketcher.Constraint("DistanceX", 1, 2, 1, 1, 4.0),
    Sketcher.Constraint("DistanceY", 0, 2, 0, 1, 3.0),
    Sketcher.Constraint("DistanceX", 0, 2, -1, 1, 46.0),
    Sketcher.Constraint("DistanceY", -1, 1, 0, 2, 30.8),
])
pocket14 = doc.addObject("PartDesign::Pocket", "Pocket013")
body.addObject(pocket14)
pocket14.Profile = sketch15
pocket14.Length = 10
pocket14.Reversed = True
doc.recompute()

linearpattern2 = doc.addObject("PartDesign::LinearPattern", "LinearPattern001")
body.addObject(linearpattern2)
linearpattern2.Originals = [pocket2]
linearpattern2.Direction = (doc.X_Axis, [""])
linearpattern2.Mode = "offset"
linearpattern2.Offset = 30
linearpattern2.Occurrences = 2
linearpattern2.Reversed = True
body.Tip = linearpattern2
doc.recompute()

linearpattern3 = doc.addObject("PartDesign::LinearPattern", "LinearPattern002")
body.addObject(linearpattern3)
linearpattern3.Originals = [pocket2]
linearpattern3.Direction = (doc.X_Axis, [""])
linearpattern3.Mode = "offset"
linearpattern3.Offset = 30
linearpattern3.Occurrences = 2
body.Tip = linearpattern3

sketch16 = doc.addObject("Sketcher::SketchObject", "Sketch015")
body.addObject(sketch16)
sketch16.AttachmentSupport = (doc.XY_Plane, [""])
sketch16.MapMode = "FlatFace"
sketch16.AttachmentOffset = App.Placement(App.Vector(0, 0, 3), App.Rotation())
sketch16.addGeometry([
    Part.LineSegment(App.Vector(22.5, -14.3, 0), App.Vector(22.5, -22.5, 0)),
    Part.LineSegment(App.Vector(22.5, -22.5, 0), App.Vector(26.5, -22.5, 0)),
    Part.LineSegment(App.Vector(26.5, -22.5, 0), App.Vector(26.5, -14.3, 0)),
    Part.LineSegment(App.Vector(26.5, -14.3, 0), App.Vector(22.5, -14.3, 0)),
    Part.LineSegment(App.Vector(22.5, 22.5, 0), App.Vector(22.5, -11.3, 0)),
    Part.LineSegment(App.Vector(22.5, -11.3, 0), App.Vector(26.5, -11.3, 0)),
    Part.LineSegment(App.Vector(26.5, -11.3, 0), App.Vector(26.5, 22.5, 0)),
    Part.LineSegment(App.Vector(26.5, 22.5, 0), App.Vector(22.5, 22.5, 0)),
    Part.LineSegment(App.Vector(33.5, 22.5, 0), App.Vector(33.5, -11.3, 0)),
    Part.LineSegment(App.Vector(33.5, -11.3, 0), App.Vector(37.5, -11.3, 0)),
    Part.LineSegment(App.Vector(37.5, -11.3, 0), App.Vector(37.5, 22.5, 0)),
    Part.LineSegment(App.Vector(37.5, 22.5, 0), App.Vector(33.5, 22.5, 0)),
    Part.LineSegment(App.Vector(33.5, -14.3, 0), App.Vector(33.5, -22.5, 0)),
    Part.LineSegment(App.Vector(33.5, -22.5, 0), App.Vector(37.5, -22.5, 0)),
    Part.LineSegment(App.Vector(37.5, -22.5, 0), App.Vector(37.5, -14.3, 0)),
    Part.LineSegment(App.Vector(37.5, -14.3, 0), App.Vector(33.5, -14.3, 0)),
], False)
sketch16.addConstraint([
    Sketcher.Constraint("Coincident", 0, 2, 1, 1),
    Sketcher.Constraint("Coincident", 1, 2, 2, 1),
    Sketcher.Constraint("Coincident", 2, 2, 3, 1),
    Sketcher.Constraint("Coincident", 3, 2, 0, 1),
    Sketcher.Constraint("Coincident", 4, 2, 5, 1),
    Sketcher.Constraint("Coincident", 5, 2, 6, 1),
    Sketcher.Constraint("Coincident", 6, 2, 7, 1),
    Sketcher.Constraint("Coincident", 7, 2, 4, 1),
    Sketcher.Constraint("Coincident", 8, 2, 9, 1),
    Sketcher.Constraint("Coincident", 9, 2, 10, 1),
    Sketcher.Constraint("Coincident", 10, 2, 11, 1),
    Sketcher.Constraint("Coincident", 11, 2, 8, 1),
    Sketcher.Constraint("Coincident", 12, 2, 13, 1),
    Sketcher.Constraint("Coincident", 13, 2, 14, 1),
    Sketcher.Constraint("Coincident", 14, 2, 15, 1),
    Sketcher.Constraint("Coincident", 15, 2, 12, 1),
    Sketcher.Constraint("Vertical", 0),
    Sketcher.Constraint("Horizontal", 1),
    Sketcher.Constraint("Vertical", 2),
    Sketcher.Constraint("Horizontal", 3),
    Sketcher.Constraint("Vertical", 4),
    Sketcher.Constraint("Horizontal", 5),
    Sketcher.Constraint("Vertical", 6),
    Sketcher.Constraint("Horizontal", 7),
    Sketcher.Constraint("Vertical", 8),
    Sketcher.Constraint("Horizontal", 9),
    Sketcher.Constraint("Vertical", 10),
    Sketcher.Constraint("Horizontal", 11),
    Sketcher.Constraint("Vertical", 12),
    Sketcher.Constraint("Horizontal", 13),
    Sketcher.Constraint("Vertical", 14),
    Sketcher.Constraint("Horizontal", 15),
    Sketcher.Constraint("Symmetric", 1, 2, 6, 2, -1),
    Sketcher.Constraint("Symmetric", 11, 2, 12, 2, -1),
    Sketcher.Constraint("Horizontal", 5, 2, 8, 2),
    Sketcher.Constraint("Horizontal", 7, 2, 10, 2),
    Sketcher.Constraint("Horizontal", 3, 2, 14, 2),
    Sketcher.Constraint("Vertical", 3, 2, 4, 2),
    Sketcher.Constraint("Vertical", 10, 2, 13, 2),
    Sketcher.Constraint("Equal", 7, 9),
    Sketcher.Constraint("DistanceX", 1, 1, 1, 2, 4.0),
    Sketcher.Constraint("DistanceY", 0, 2, 0, 1, 8.2),
    Sketcher.Constraint("DistanceY", 4, 2, 4, 1, 33.8),
    Sketcher.Constraint("DistanceY", 3, 2, 4, 2, 3.0),
    Sketcher.Constraint("DistanceX", 5, 2, 8, 2, 7.0),
    Sketcher.Constraint("DistanceX", -1, 1, 0, 2, 22.5),
])
pad2 = doc.addObject("PartDesign::Pad", "Pad001")
body.addObject(pad2)
pad2.Profile = sketch16
pad2.Length = 3
pad2.Reversed = True
doc.recompute()

mirrored2 = doc.addObject("PartDesign::Mirrored", "Mirrored001")
body.addObject(mirrored2)
mirrored2.Originals = [pad2]
mirrored2.MirrorPlane = (doc.YZ_Plane, [""])
body.Tip = mirrored2

sketch17 = doc.addObject("Sketcher::SketchObject", "Sketch016")
body.addObject(sketch17)
sketch17.AttachmentSupport = (doc.XY_Plane, [""])
sketch17.MapMode = "FlatFace"
sketch17.addGeometry([
    Part.LineSegment(App.Vector(50, 33.8, 0), App.Vector(50, 30.8, 0)),
    Part.LineSegment(App.Vector(50, 30.8, 0), App.Vector(38, 30.8, 0)),
    Part.LineSegment(App.Vector(38, 30.8, 0), App.Vector(38, 33.8, 0)),
    Part.LineSegment(App.Vector(38, 33.8, 0), App.Vector(50, 33.8, 0)),
], False)
sketch17.addConstraint([
    Sketcher.Constraint("Coincident", 0, 2, 1, 1),
    Sketcher.Constraint("Coincident", 1, 2, 2, 1),
    Sketcher.Constraint("Coincident", 2, 2, 3, 1),
    Sketcher.Constraint("Coincident", 3, 2, 0, 1),
    Sketcher.Constraint("Vertical", 0),
    Sketcher.Constraint("Horizontal", 1),
    Sketcher.Constraint("Vertical", 2),
    Sketcher.Constraint("Horizontal", 3),
    Sketcher.Constraint("DistanceX", 1, 2, 1, 1, 12.0),
    Sketcher.Constraint("DistanceY", 0, 2, 0, 1, 3.0),
    Sketcher.Constraint("DistanceX", -1, 1, 0, 2, 50.0),
    Sketcher.Constraint("DistanceY", -1, 1, 0, 2, 30.8),
])
pocket15 = doc.addObject("PartDesign::Pocket", "Pocket014")
body.addObject(pocket15)
pocket15.Profile = sketch17
pocket15.Type = "UpToFirst"
pocket15.Reversed = True

sketch18 = doc.addObject("Sketcher::SketchObject", "Sketch017")
body.addObject(sketch18)
sketch18.AttachmentSupport = (doc.XY_Plane, [""])
sketch18.MapMode = "FlatFace"
sketch18.addGeometry([
    Part.LineSegment(App.Vector(-38, 33.8, 0), App.Vector(-38, 30.8, 0)),
    Part.LineSegment(App.Vector(-38, 30.8, 0), App.Vector(-50, 30.8, 0)),
    Part.LineSegment(App.Vector(-50, 30.8, 0), App.Vector(-50, 33.8, 0)),
    Part.LineSegment(App.Vector(-50, 33.8, 0), App.Vector(-38, 33.8, 0)),
], False)
sketch18.addConstraint([
    Sketcher.Constraint("Coincident", 0, 2, 1, 1),
    Sketcher.Constraint("Coincident", 1, 2, 2, 1),
    Sketcher.Constraint("Coincident", 2, 2, 3, 1),
    Sketcher.Constraint("Coincident", 3, 2, 0, 1),
    Sketcher.Constraint("Vertical", 0),
    Sketcher.Constraint("Horizontal", 1),
    Sketcher.Constraint("Vertical", 2),
    Sketcher.Constraint("Horizontal", 3),
    Sketcher.Constraint("DistanceX", 1, 2, 1, 1, 12.0),
    Sketcher.Constraint("DistanceY", 0, 2, 0, 1, 3.0),
    Sketcher.Constraint("DistanceX", 0, 2, -1, 1, 38.0),
    Sketcher.Constraint("DistanceY", -1, 1, 0, 2, 30.8),
])
pocket16 = doc.addObject("PartDesign::Pocket", "Pocket015")
body.addObject(pocket16)
pocket16.Profile = sketch18
pocket16.Type = "UpToFirst"
pocket16.Reversed = True

sketch19 = doc.addObject("Sketcher::SketchObject", "Sketch018")
body.addObject(sketch19)
sketch19.AttachmentSupport = (doc.XY_Plane, [""])
sketch19.MapMode = "FlatFace"
sketch19.addGeometry([
    Part.LineSegment(App.Vector(-38, -30.8, 0), App.Vector(-38, -33.8, 0)),
    Part.LineSegment(App.Vector(-38, -33.8, 0), App.Vector(-50, -33.8, 0)),
    Part.LineSegment(App.Vector(-50, -33.8, 0), App.Vector(-50, -30.8, 0)),
    Part.LineSegment(App.Vector(-50, -30.8, 0), App.Vector(-38, -30.8, 0)),
], False)
sketch19.addConstraint([
    Sketcher.Constraint("Coincident", 0, 2, 1, 1),
    Sketcher.Constraint("Coincident", 1, 2, 2, 1),
    Sketcher.Constraint("Coincident", 2, 2, 3, 1),
    Sketcher.Constraint("Coincident", 3, 2, 0, 1),
    Sketcher.Constraint("Vertical", 0),
    Sketcher.Constraint("Horizontal", 1),
    Sketcher.Constraint("Vertical", 2),
    Sketcher.Constraint("Horizontal", 3),
    Sketcher.Constraint("DistanceX", 1, 2, 1, 1, 12.0),
    Sketcher.Constraint("DistanceY", 0, 2, 0, 1, 3.0),
    Sketcher.Constraint("DistanceX", 0, 2, -1, 1, 38.0),
    Sketcher.Constraint("DistanceY", 0, 2, -1, 1, 33.8),
])
pocket17 = doc.addObject("PartDesign::Pocket", "Pocket016")
body.addObject(pocket17)
pocket17.Profile = sketch19
pocket17.Type = "UpToFirst"
pocket17.Reversed = True

sketch20 = doc.addObject("Sketcher::SketchObject", "Sketch019")
body.addObject(sketch20)
sketch20.AttachmentSupport = (doc.XY_Plane, [""])
sketch20.MapMode = "FlatFace"
sketch20.addGeometry([
    Part.LineSegment(App.Vector(50, -30.8, 0), App.Vector(50, -33.8, 0)),
    Part.LineSegment(App.Vector(50, -33.8, 0), App.Vector(38, -33.8, 0)),
    Part.LineSegment(App.Vector(38, -33.8, 0), App.Vector(38, -30.8, 0)),
    Part.LineSegment(App.Vector(38, -30.8, 0), App.Vector(50, -30.8, 0)),
], False)
sketch20.addConstraint([
    Sketcher.Constraint("Coincident", 0, 2, 1, 1),
    Sketcher.Constraint("Coincident", 1, 2, 2, 1),
    Sketcher.Constraint("Coincident", 2, 2, 3, 1),
    Sketcher.Constraint("Coincident", 3, 2, 0, 1),
    Sketcher.Constraint("Vertical", 0),
    Sketcher.Constraint("Horizontal", 1),
    Sketcher.Constraint("Vertical", 2),
    Sketcher.Constraint("Horizontal", 3),
    Sketcher.Constraint("DistanceX", 1, 2, 1, 1, 12.0),
    Sketcher.Constraint("DistanceY", 0, 2, 0, 1, 3.0),
    Sketcher.Constraint("DistanceX", -1, 1, 0, 2, 50.0),
    Sketcher.Constraint("DistanceY", 0, 2, -1, 1, 33.8),
])
pocket18 = doc.addObject("PartDesign::Pocket", "Pocket017")
body.addObject(pocket18)
pocket18.Profile = sketch20
pocket18.Type = "UpToFirst"
pocket18.Reversed = True

doc.recompute()
